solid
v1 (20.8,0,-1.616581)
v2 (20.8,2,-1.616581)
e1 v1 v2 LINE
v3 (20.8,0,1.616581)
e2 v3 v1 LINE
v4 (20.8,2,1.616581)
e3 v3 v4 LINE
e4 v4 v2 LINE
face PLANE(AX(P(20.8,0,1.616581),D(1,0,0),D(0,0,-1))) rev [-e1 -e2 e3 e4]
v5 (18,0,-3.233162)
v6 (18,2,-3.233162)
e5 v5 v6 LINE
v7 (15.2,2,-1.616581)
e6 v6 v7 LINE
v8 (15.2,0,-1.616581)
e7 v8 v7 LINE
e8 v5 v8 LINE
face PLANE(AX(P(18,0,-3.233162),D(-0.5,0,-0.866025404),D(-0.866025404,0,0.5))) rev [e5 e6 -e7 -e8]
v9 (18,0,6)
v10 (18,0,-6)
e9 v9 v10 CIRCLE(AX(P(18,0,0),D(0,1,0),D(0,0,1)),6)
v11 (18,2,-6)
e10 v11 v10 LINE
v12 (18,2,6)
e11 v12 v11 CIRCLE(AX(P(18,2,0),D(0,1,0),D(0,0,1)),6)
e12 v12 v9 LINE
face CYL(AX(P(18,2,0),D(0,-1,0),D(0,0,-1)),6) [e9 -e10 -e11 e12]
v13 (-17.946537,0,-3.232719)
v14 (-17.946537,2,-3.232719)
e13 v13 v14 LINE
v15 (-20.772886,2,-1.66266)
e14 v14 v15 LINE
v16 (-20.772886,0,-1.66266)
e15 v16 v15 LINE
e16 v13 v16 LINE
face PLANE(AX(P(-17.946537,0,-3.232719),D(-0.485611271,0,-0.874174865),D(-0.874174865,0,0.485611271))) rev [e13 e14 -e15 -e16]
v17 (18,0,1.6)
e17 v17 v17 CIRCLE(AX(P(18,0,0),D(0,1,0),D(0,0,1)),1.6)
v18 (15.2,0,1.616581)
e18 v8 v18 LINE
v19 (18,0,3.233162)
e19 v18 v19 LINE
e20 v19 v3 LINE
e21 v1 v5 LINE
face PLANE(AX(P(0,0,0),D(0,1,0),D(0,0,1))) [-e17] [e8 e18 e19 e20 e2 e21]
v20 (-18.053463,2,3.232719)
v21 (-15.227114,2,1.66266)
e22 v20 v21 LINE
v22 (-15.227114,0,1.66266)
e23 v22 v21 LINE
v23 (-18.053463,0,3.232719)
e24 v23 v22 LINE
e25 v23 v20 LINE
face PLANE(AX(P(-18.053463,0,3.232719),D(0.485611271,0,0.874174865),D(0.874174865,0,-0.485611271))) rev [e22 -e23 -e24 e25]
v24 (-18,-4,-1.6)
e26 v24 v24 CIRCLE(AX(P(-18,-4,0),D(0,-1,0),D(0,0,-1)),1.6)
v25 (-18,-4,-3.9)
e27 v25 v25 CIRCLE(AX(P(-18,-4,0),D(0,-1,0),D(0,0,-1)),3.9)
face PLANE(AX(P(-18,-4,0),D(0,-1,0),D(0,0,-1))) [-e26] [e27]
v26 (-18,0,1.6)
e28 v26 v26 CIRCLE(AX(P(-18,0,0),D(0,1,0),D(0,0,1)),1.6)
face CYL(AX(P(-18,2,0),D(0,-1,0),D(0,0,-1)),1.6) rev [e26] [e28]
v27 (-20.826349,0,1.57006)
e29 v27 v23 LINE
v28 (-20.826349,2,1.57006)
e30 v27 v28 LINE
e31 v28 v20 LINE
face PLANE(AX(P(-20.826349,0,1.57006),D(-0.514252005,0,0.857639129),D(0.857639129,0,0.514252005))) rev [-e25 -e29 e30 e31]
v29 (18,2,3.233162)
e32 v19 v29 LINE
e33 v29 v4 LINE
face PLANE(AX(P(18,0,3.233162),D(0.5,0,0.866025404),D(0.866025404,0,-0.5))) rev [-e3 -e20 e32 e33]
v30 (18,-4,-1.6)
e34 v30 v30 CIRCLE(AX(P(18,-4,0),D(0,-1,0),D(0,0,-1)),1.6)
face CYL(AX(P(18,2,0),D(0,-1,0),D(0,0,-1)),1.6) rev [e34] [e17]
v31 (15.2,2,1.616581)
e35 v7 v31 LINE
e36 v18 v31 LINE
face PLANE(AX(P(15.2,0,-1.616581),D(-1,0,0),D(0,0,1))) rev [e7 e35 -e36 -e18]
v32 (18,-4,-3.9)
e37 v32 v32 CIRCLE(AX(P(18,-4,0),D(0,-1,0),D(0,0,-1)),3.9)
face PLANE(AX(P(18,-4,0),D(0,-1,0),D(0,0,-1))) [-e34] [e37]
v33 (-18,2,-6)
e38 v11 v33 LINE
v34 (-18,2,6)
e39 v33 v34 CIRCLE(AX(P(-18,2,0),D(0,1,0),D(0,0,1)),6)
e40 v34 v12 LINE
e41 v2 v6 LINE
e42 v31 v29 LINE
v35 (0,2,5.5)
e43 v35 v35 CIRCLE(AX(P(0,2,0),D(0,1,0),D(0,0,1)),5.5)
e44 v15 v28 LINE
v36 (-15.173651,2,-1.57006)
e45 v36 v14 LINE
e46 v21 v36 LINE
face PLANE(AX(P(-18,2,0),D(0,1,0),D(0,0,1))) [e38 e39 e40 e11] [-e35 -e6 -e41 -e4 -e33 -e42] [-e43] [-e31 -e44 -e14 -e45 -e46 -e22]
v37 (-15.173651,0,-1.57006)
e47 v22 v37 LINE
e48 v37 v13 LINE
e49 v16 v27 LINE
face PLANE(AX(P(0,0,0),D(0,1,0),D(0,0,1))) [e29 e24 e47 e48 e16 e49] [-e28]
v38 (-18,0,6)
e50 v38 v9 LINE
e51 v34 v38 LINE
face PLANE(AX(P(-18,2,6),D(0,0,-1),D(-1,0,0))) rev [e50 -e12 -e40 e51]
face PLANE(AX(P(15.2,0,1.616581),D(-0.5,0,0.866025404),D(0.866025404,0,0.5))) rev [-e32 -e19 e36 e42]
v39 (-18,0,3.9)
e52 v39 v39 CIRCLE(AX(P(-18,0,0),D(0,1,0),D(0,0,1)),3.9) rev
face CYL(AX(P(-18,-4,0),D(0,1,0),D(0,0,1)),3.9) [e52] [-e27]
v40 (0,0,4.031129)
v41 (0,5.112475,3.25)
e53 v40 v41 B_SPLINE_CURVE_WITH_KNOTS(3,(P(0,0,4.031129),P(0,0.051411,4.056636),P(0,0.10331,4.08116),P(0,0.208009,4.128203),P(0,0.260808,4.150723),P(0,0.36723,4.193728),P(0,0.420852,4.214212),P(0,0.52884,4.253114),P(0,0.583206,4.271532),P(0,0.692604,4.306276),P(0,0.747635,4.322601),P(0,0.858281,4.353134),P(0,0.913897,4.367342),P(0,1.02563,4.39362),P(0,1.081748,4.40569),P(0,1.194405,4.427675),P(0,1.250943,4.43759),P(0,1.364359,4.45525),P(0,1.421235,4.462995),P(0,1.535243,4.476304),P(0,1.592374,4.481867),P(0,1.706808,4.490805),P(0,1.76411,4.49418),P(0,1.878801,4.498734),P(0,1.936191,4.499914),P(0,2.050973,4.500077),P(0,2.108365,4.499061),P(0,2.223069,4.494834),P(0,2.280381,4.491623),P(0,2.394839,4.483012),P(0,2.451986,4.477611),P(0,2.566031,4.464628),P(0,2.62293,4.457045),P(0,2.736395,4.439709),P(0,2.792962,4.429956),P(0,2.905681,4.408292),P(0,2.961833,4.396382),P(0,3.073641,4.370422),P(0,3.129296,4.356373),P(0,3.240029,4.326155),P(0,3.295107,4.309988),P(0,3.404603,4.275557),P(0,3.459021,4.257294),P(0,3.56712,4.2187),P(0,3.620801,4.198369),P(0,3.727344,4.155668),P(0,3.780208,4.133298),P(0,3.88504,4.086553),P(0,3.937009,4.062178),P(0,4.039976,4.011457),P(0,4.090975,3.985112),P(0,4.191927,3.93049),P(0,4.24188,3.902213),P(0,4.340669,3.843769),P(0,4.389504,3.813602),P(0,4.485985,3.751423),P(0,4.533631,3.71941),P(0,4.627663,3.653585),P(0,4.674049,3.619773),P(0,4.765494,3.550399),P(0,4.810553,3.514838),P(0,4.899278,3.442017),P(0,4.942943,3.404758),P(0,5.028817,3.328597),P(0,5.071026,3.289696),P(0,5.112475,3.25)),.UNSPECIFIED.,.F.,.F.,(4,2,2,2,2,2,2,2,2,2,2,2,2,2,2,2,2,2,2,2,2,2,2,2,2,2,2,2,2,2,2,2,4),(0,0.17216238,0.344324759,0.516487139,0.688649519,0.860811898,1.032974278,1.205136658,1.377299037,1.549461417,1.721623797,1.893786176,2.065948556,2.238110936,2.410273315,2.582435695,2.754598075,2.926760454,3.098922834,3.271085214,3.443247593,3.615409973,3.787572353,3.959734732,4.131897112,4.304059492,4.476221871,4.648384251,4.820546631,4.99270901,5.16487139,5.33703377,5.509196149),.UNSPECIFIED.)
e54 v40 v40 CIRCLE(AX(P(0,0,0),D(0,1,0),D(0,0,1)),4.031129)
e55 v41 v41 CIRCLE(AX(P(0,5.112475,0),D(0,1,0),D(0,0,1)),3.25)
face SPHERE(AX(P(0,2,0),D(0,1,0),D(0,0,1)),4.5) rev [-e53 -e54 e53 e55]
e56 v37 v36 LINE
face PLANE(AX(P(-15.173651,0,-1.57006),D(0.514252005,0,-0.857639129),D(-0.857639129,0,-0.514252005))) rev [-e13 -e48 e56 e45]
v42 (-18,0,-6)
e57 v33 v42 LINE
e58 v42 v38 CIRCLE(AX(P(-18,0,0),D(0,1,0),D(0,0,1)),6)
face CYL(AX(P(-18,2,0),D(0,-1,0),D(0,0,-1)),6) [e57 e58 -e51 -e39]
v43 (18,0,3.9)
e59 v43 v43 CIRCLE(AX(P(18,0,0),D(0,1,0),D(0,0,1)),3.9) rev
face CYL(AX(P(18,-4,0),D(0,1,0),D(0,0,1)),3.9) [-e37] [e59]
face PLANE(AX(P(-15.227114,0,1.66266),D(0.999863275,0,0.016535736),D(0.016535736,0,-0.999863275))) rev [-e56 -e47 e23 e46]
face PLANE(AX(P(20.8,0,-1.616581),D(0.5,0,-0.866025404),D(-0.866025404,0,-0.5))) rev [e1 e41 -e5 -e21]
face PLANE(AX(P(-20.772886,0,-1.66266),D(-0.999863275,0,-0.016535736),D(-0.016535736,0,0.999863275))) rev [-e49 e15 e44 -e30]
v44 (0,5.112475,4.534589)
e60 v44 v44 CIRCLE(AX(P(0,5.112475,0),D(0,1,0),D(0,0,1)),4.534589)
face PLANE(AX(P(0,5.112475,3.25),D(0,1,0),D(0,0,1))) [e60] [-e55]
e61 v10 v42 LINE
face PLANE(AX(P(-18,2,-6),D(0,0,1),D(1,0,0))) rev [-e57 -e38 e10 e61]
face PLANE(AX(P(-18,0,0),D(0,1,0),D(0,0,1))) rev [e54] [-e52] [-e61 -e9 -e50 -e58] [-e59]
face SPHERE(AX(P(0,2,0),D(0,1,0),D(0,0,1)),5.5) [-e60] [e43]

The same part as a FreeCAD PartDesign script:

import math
import FreeCAD as App
import Part
import Sketcher
from FreeCAD import Vector
Q = App.Units.Quantity

doc = App.newDocument("Part")
params = doc.addObject("Spreadsheet::Sheet", "Params")
for row, (alias, value) in enumerate([
    ("sketch1_diameter", "9 mm"),
    ("sketch1_radius", "6 mm"),
    ("sketch1_diameter2", "3.2 mm"),
    ("sketch1_width", "36 mm"),
    ("pad1_length", "2 mm"),
    ("sketch2_diameter", "7.8 mm"),
    ("sketch2_diameter2", "3.2 mm"),
    ("pad2_length", "4 mm"),
    ("sketch3_radius", "5.5 mm"),
    ("sketch3_radius2", "4.5 mm"),
    ("revolution_angle", "360 deg"),
    ("pocket1_length", "2 mm"),
], start=1):
    params.set(f"A{row}", alias)
    params.set(f"B{row}", "=" + value)
    params.setAlias(f"B{row}", alias)

body = doc.addObject("PartDesign::Body", "Body")

sketch1 = body.newObject("Sketcher::SketchObject", "Sketch")
sketch1.AttachmentSupport = (doc.getObject("XZ_Plane"), [""])
sketch1.MapMode = "FlatFace"
sketch1.addGeometry([
    Part.LineSegment(Vector(18, -6, 0), Vector(-18, -6, 0)),
    Part.ArcOfCircle(Part.Circle(Vector(-18, 0, 0), Vector(0, 0, 1), 6), math.radians(90), math.radians(270)),
    Part.LineSegment(Vector(-18, 6, 0), Vector(18, 6, 0)),
    Part.ArcOfCircle(Part.Circle(Vector(18, 0, 0), Vector(0, 0, 1), 6), math.radians(-90), math.radians(90)),
    Part.Circle(Vector(18, 0, 0), Vector(0, 0, 1), 1.6),
    Part.Circle(Vector(0, 0, 0), Vector(0, 0, 1), 4.5),
    Part.Circle(Vector(-18, 0, 0), Vector(0, 0, 1), 1.6),
], False)
sketch1.addConstraint([
    Sketcher.Constraint("Tangent", 0, 2, 1, 2),
    Sketcher.Constraint("Tangent", 1, 1, 2, 1),
    Sketcher.Constraint("Tangent", 2, 2, 3, 2),
    Sketcher.Constraint("Tangent", 3, 1, 0, 1),
    Sketcher.Constraint("Horizontal", 0),
    Sketcher.Constraint("Horizontal", 2),
    Sketcher.Constraint("Coincident", 5, 3, -1, 1),
    Sketcher.Constraint("Coincident", 4, 3, 3, 3),
    Sketcher.Constraint("Coincident", 6, 3, 1, 3),
    Sketcher.Constraint("Equal", 4, 6),
    Sketcher.Constraint("Symmetric", 1, 3, 3, 3, -1, 1),
    Sketcher.Constraint("Diameter", 5, 9.0),
    Sketcher.Constraint("Radius", 1, 6.0),
    Sketcher.Constraint("Diameter", 4, 3.2),
    Sketcher.Constraint("DistanceX", 0, 2, 0, 1, 36.0),
])
sketch1.setExpression("Constraints[11]", "Params.sketch1_diameter")
sketch1.setExpression("Constraints[12]", "Params.sketch1_radius")
sketch1.setExpression("Constraints[13]", "Params.sketch1_diameter2")
sketch1.setExpression("Constraints[14]", "Params.sketch1_width")
pad1 = body.newObject("PartDesign::Pad", "Pad")
pad1.Profile = sketch1
pad1.setExpression("Length", "Params.pad1_length")
pad1.Reversed = True

sketch2 = body.newObject("Sketcher::SketchObject", "Sketch001")
sketch2.AttachmentSupport = (doc.getObject("XZ_Plane"), [""])
sketch2.MapMode = "FlatFace"
sketch2.AttachmentOffset = App.Placement(Vector(0, 0, 4), App.Rotation())
sketch2.addGeometry([
    Part.Circle(Vector(-18, 0, 0), Vector(0, 0, 1), 3.9),
    Part.Circle(Vector(-18, 0, 0), Vector(0, 0, 1), 1.6),
    Part.Circle(Vector(18, 0, 0), Vector(0, 0, 1), 3.9),
    Part.Circle(Vector(18, 0, 0), Vector(0, 0, 1), 1.6),
], False)
sketch2.addConstraint([
    Sketcher.Constraint("Coincident", 1, 3, 0, 3),
    Sketcher.Constraint("Coincident", 3, 3, 2, 3),
    Sketcher.Constraint("Equal", 0, 2),
    Sketcher.Constraint("Equal", 1, 3),
    Sketcher.Constraint("Symmetric", 0, 3, 2, 3, -1, 1),
    Sketcher.Constraint("PointOnObject", 0, 3, -1),
    Sketcher.Constraint("Diameter", 0, 7.8),
    Sketcher.Constraint("Diameter", 1, 3.2),
    Sketcher.Constraint("DistanceX", 0, 3, -1, 1, 18.0),
])
sketch2.setExpression("Constraints[6]", "Params.sketch2_diameter")
sketch2.setExpression("Constraints[7]", "Params.sketch2_diameter2")
pad2 = body.newObject("PartDesign::Pad", "Pad001")
pad2.Profile = sketch2
pad2.setExpression("Length", "Params.pad2_length")
pad2.Reversed = True

sketch3 = body.newObject("Sketcher::SketchObject", "Sketch002")
sketch3.AttachmentSupport = (doc.getObject("YZ_Plane"), [""])
sketch3.MapMode = "FlatFace"
sketch3.addGeometry([
    Part.LineSegment(Vector(5.1, 3.2, 0), Vector(5.1, 4.5, 0)),
    Part.ArcOfCircle(Part.Circle(Vector(2, 0, 0), Vector(0, 0, 1), 5.5), math.radians(56), math.radians(111)),
    Part.LineSegment(Vector(0, 5.1, 0), Vector(0, 4, 0)),
    Part.ArcOfCircle(Part.Circle(Vector(2, 0, 0), Vector(0, 0, 1), 4.5), math.radians(46), math.radians(116)),
    Part.LineSegment(Vector(5.1, -4.5, 0), Vector(5.1, -3.2, 0)),
    Part.ArcOfCircle(Part.Circle(Vector(2, 0, 0), Vector(0, 0, 1), 4.5), math.radians(-116), math.radians(-46)),
    Part.LineSegment(Vector(0, -4, 0), Vector(0, -5.1, 0)),
    Part.ArcOfCircle(Part.Circle(Vector(2, 0, 0), Vector(0, 0, 1), 5.5), math.radians(-111), math.radians(-56)),
], False)
sketch3.addConstraint([
    Sketcher.Constraint("Coincident", 0, 2, 1, 1),
    Sketcher.Constraint("Coincident", 1, 2, 2, 1),
    Sketcher.Constraint("Coincident", 2, 2, 3, 2),
    Sketcher.Constraint("Coincident", 3, 1, 0, 1),
    Sketcher.Constraint("Coincident", 4, 2, 5, 2),
    Sketcher.Constraint("Coincident", 5, 1, 6, 1),
    Sketcher.Constraint("Coincident", 6, 2, 7, 1),
    Sketcher.Constraint("Coincident", 7, 2, 4, 1),
    Sketcher.Constraint("Vertical", 0),
    Sketcher.Constraint("Vertical", 2),
    Sketcher.Constraint("Vertical", 4),
    Sketcher.Constraint("Vertical", 6),
    Sketcher.Constraint("Coincident", 3, 3, 1, 3),
    Sketcher.Constraint("Coincident", 5, 3, 1, 3),
    Sketcher.Constraint("Coincident", 7, 3, 1, 3),
    Sketcher.Constraint("Equal", 3, 5),
    Sketcher.Constraint("Equal", 1, 7),
    Sketcher.Constraint("Symmetric", 2, 2, 5, 1, -1, 1),
    Sketcher.Constraint("Symmetric", 3, 1, 4, 2, -1),
    Sketcher.Constraint("Radius", 1, 5.5),
    Sketcher.Constraint("Radius", 3, 4.5),
    Sketcher.Constraint("DistanceX", -1, 1, 1, 3, 2.0),
    Sketcher.Constraint("DistanceY", 4, 2, 3, 1, 6.5),
])
sketch3.setExpression("Constraints[19]", "Params.sketch3_radius")
sketch3.setExpression("Constraints[20]", "Params.sketch3_radius2")
revolution = body.newObject("PartDesign::Revolution", "Revolution")
revolution.Profile = sketch3
revolution.ReferenceAxis = (sketch3, ["H_Axis"])
revolution.setExpression("Angle", "Params.revolution_angle")

sketch4 = body.newObject("Sketcher::SketchObject", "Sketch003")
sketch4.AttachmentSupport = (doc.getObject("XZ_Plane"), [""])
sketch4.MapMode = "FlatFace"
sketch4.AttachmentOffset = App.Placement(Vector(0, 0, -2), App.Rotation())
sketch4.addGeometry([
    Part.LineSegment(Vector(-15.2, 1.7, 0), Vector(-15.2, -1.6, 0)),
    Part.LineSegment(Vector(-15.2, -1.6, 0), Vector(-17.9, -3.2, 0)),
    Part.LineSegment(Vector(-17.9, -3.2, 0), Vector(-20.8, -1.7, 0)),
    Part.LineSegment(Vector(-20.8, -1.7, 0), Vector(-20.8, 1.6, 0)),
    Part.LineSegment(Vector(-20.8, 1.6, 0), Vector(-18.1, 3.2, 0)),
    Part.LineSegment(Vector(-18.1, 3.2, 0), Vector(-15.2, 1.7, 0)),
    Part.LineSegment(Vector(18, 3.2, 0), Vector(20.8, 1.6, 0)),
    Part.LineSegment(Vector(20.8, 1.6, 0), Vector(20.8, -1.6, 0)),
    Part.LineSegment(Vector(20.8, -1.6, 0), Vector(18, -3.2, 0)),
    Part.LineSegment(Vector(18, -3.2, 0), Vector(15.2, -1.6, 0)),
    Part.LineSegment(Vector(15.2, -1.6, 0), Vector(15.2, 1.6, 0)),
    Part.LineSegment(Vector(15.2, 1.6, 0), Vector(18, 3.2, 0)),
], False)
sketch4.addConstraint([
    Sketcher.Constraint("Coincident", 0, 2, 1, 1),
    Sketcher.Constraint("Coincident", 1, 2, 2, 1),
    Sketcher.Constraint("Coincident", 2, 2, 3, 1),
    Sketcher.Constraint("Coincident", 3, 2, 4, 1),
    Sketcher.Constraint("Coincident", 4, 2, 5, 1),
    Sketcher.Constraint("Coincident", 5, 2, 0, 1),
    Sketcher.Constraint("Coincident", 6, 2, 7, 1),
    Sketcher.Constraint("Coincident", 7, 2, 8, 1),
    Sketcher.Constraint("Coincident", 8, 2, 9, 1),
    Sketcher.Constraint("Coincident", 9, 2, 10, 1),
    Sketcher.Constraint("Coincident", 10, 2, 11, 1),
    Sketcher.Constraint("Coincident", 11, 2, 6, 1),
    Sketcher.Constraint("Vertical", 7),
    Sketcher.Constraint("Vertical", 10),
    Sketcher.Constraint("Symmetric", 8, 2, 11, 2, -1),
    Sketcher.Constraint("Parallel", 0, 3),
    Sketcher.Constraint("Parallel", 1, 4),
    Sketcher.Constraint("Parallel", 2, 5),
    Sketcher.Constraint("Parallel", 6, 9),
    Sketcher.Constraint("Parallel", 8, 11),
    Sketcher.Constraint("Horizontal", 7, 2, 9, 2),
    Sketcher.Constraint("Horizontal", 6, 2, 10, 2),
    Sketcher.Constraint("Equal", 0, 1),
    Sketcher.Constraint("Equal", 1, 2),
    Sketcher.Constraint("Equal", 2, 3),
    Sketcher.Constraint("Equal", 5, 6),
    Sketcher.Constraint("Angle", 6, Q("-30 deg")),
    Sketcher.Constraint("DistanceX", -1, 1, 8, 2, 18.0),
    Sketcher.Constraint("DistanceX", -1, 1, 6, 2, 20.8),
    Sketcher.Constraint("DistanceY", 7, 2, 7, 1, 3.233162),
    Sketcher.Constraint("DistanceY", 2, 2, 0, 2, 0.0926),
    Sketcher.Constraint("DistanceY", 1, 2, 6, 2, 4.8493),
    Sketcher.Constraint("DistanceY", 7, 2, 4, 2, 4.8493),
    Sketcher.Constraint("DistanceY", 8, 2, 0, 2, 1.663102),
    Sketcher.Constraint("DistanceX", 0, 2, -1, 1, 15.173651),
])
pocket1 = body.newObject("PartDesign::Pocket", "Pocket")
pocket1.Profile = sketch4
pocket1.setExpression("Length", "Params.pocket1_length")
pocket1.Reversed = True

doc.recompute()
